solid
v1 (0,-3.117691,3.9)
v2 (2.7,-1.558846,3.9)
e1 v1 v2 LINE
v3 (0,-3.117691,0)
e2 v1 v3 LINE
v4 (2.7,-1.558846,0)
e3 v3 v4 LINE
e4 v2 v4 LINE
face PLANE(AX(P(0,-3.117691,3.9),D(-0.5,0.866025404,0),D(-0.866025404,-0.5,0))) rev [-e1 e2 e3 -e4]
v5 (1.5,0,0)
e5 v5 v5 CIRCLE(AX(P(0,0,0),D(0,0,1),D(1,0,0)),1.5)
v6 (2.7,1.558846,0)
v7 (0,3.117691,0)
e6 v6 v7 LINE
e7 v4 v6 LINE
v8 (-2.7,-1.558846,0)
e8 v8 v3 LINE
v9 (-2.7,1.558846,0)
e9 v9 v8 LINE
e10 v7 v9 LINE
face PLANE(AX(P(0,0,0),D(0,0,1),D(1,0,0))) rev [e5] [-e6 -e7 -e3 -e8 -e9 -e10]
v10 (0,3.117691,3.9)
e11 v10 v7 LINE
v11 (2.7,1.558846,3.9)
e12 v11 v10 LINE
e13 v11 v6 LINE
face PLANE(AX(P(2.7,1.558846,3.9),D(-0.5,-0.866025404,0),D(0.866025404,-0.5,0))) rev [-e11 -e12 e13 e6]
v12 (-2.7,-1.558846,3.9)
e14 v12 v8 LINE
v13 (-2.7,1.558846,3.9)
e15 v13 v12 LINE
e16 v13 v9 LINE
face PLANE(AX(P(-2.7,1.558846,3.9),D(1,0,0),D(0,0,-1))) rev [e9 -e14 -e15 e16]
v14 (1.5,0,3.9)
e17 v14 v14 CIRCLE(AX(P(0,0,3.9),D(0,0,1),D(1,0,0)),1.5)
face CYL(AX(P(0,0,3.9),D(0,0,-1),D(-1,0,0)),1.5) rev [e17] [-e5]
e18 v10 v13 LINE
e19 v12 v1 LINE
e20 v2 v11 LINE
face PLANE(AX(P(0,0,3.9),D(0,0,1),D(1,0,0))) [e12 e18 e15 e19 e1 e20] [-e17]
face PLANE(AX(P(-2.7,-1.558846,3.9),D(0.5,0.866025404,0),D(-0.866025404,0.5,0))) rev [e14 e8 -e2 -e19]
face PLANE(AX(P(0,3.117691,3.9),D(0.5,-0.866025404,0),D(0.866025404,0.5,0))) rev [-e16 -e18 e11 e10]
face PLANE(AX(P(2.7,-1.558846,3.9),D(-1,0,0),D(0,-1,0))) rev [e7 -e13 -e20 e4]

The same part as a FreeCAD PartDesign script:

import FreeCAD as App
import Part
import Sketcher
from FreeCAD import Vector
Q = App.Units.Quantity

doc = App.newDocument("Part")
body = doc.addObject("PartDesign::Body", "Body")

sketch1 = body.newObject("Sketcher::SketchObject", "Sketch")
sketch1.AttachmentSupport = (doc.getObject("XY_Plane"), [""])
sketch1.MapMode = "FlatFace"
sketch1.addGeometry(Part.LineSegment(Vector(0, 3.1, 0), Vector(-2.7, 1.6, 0)), False)
sketch1.addGeometry(Part.LineSegment(Vector(-2.7, 1.6, 0), Vector(-2.7, -1.6, 0)), False)
sketch1.addGeometry(Part.LineSegment(Vector(-2.7, -1.6, 0), Vector(0, -3.1, 0)), False)
sketch1.addGeometry(Part.LineSegment(Vector(0, -3.1, 0), Vector(2.7, -1.6, 0)), False)
sketch1.addGeometry(Part.LineSegment(Vector(2.7, -1.6, 0), Vector(2.7, 1.6, 0)), False)
sketch1.addGeometry(Part.LineSegment(Vector(2.7, 1.6, 0), Vector(0, 3.1, 0)), False)
sketch1.addGeometry(Part.Circle(Vector(0, 0, 0), Vector(0, 0, 1), 1.5), False)
sketch1.addConstraint(Sketcher.Constraint("Coincident", 0, 2, 1, 1))
sketch1.addConstraint(Sketcher.Constraint("Coincident", 1, 2, 2, 1))
sketch1.addConstraint(Sketcher.Constraint("Coincident", 2, 2, 3, 1))
sketch1.addConstraint(Sketcher.Constraint("Coincident", 3, 2, 4, 1))
sketch1.addConstraint(Sketcher.Constraint("Coincident", 4, 2, 5, 1))
sketch1.addConstraint(Sketcher.Constraint("Coincident", 5, 2, 0, 1))
sketch1.addConstraint(Sketcher.Constraint("Vertical", 1))
sketch1.addConstraint(Sketcher.Constraint("Vertical", 4))
sketch1.addConstraint(Sketcher.Constraint("Coincident", 6, 3, -1, 1))
sketch1.addConstraint(Sketcher.Constraint("Symmetric", 0, 2, 3, 2, -1, 1))
sketch1.addConstraint(Sketcher.Constraint("Symmetric", 2, 2, 5, 2, -1, 1))
sketch1.addConstraint(Sketcher.Constraint("PointOnObject", 2, 2, -2))
sketch1.addConstraint(Sketcher.Constraint("Parallel", 2, 5))
sketch1.addConstraint(Sketcher.Constraint("Horizontal", 1, 2, 3, 2))
sketch1.addConstraint(Sketcher.Constraint("Diameter", 6, Q("3 mm")))
sketch1.addConstraint(Sketcher.Constraint("Angle", 0, Q("-150 deg")))
sketch1.addConstraint(Sketcher.Constraint("DistanceX", 0, 2, -1, 1, Q("2.7 mm")))
sketch1.addConstraint(Sketcher.Constraint("DistanceY", 1, 2, 1, 1, Q("3.117691 mm")))
pad1 = body.newObject("PartDesign::Pad", "Pad")
pad1.Profile = sketch1
pad1.Length = 3.9

doc.recompute()
